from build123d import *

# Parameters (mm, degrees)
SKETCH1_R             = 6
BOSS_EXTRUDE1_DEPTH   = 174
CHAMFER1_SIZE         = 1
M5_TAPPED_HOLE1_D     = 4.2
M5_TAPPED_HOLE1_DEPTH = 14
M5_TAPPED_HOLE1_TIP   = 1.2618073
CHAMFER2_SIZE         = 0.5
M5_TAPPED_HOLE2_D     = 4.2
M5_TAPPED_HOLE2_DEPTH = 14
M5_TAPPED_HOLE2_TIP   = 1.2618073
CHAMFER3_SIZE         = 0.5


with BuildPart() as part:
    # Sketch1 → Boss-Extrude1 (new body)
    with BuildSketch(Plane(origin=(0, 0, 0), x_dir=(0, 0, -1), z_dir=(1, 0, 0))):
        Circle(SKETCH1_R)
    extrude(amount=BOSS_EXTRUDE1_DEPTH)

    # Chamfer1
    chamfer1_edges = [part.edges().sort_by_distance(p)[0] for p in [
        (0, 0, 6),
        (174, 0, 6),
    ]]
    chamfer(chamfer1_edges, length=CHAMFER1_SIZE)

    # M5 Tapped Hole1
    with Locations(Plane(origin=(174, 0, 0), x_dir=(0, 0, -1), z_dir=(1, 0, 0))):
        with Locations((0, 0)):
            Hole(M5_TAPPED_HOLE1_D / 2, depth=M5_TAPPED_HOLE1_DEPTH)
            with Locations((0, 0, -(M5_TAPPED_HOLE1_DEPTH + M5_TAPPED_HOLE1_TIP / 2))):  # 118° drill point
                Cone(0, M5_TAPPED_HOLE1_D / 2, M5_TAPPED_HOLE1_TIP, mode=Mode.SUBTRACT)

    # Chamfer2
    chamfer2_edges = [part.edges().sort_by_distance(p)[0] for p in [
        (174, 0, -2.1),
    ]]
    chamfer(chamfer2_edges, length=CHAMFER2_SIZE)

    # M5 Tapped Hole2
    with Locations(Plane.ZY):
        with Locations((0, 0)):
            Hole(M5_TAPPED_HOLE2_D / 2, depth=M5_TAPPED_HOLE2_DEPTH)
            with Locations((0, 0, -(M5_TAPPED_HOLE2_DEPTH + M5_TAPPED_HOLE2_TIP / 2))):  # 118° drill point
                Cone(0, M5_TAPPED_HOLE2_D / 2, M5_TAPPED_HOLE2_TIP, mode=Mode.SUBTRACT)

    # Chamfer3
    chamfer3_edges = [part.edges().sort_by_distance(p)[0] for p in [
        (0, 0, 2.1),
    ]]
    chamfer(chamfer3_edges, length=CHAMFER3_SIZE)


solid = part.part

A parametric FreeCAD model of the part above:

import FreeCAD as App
import Part
import Sketcher
Q = App.Units.Quantity


def edges_at(feature, points):
    """Names of the edges that pass closest to the given points."""
    edges = feature.Shape.Edges
    near = lambda p: min(range(len(edges)), key=lambda i: edges[i].distToShape(Part.Vertex(*p))[0])
    return sorted({f"Edge{near(p) + 1}" for p in points})

doc = App.newDocument("Part")
body = doc.addObject("PartDesign::Body", "Body")

sketch1 = body.newObject("Sketcher::SketchObject", "Sketch")
sketch1.AttachmentSupport = (doc.getObject("YZ_Plane"), [""])
sketch1.MapMode = "FlatFace"
sketch1.addGeometry(Part.Circle(App.Vector(0, 0, 0), App.Vector(0, 0, 1), 6), False)
sketch1.addConstraint([
    Sketcher.Constraint("Coincident", 0, 3, -1, 1),
    Sketcher.Constraint("Diameter", 0, Q("12 mm")),
])
pad1 = body.newObject("PartDesign::Pad", "Pad")
pad1.Profile = sketch1
pad1.Length = 174
doc.recompute()

chamfer = body.newObject("PartDesign::Chamfer", "Chamfer")
chamfer.Base = (pad1, edges_at(pad1, [(0, 0, 6), (174, 0, 6)]))
chamfer.Size = 1

sketch2 = body.newObject("Sketcher::SketchObject", "Sketch001")
sketch2.AttachmentSupport = (doc.getObject("YZ_Plane"), [""])
sketch2.MapMode = "FlatFace"
sketch2.AttachmentOffset = App.Placement(App.Vector(0, 0, 174), App.Rotation())
sketch2.addGeometry(Part.Circle(App.Vector(0, 0, 0), App.Vector(0, 0, 1), 2.1), False)
sketch2.addConstraint([
    Sketcher.Constraint("Coincident", 0, 3, -1, 1),
    Sketcher.Constraint("Diameter", 0, Q("4.2 mm")),
])
doc.recompute()
hole = body.newObject("PartDesign::Hole", "Hole")
hole.Profile = sketch2
hole.ThreadType = "None"
hole.Diameter = 4.2
hole.DepthType = "Dimension"
hole.Depth = 14
hole.DrillPoint = "Angled"
hole.DrillPointAngle = 118
doc.recompute()

chamfer2 = body.newObject("PartDesign::Chamfer", "Chamfer001")
chamfer2.Base = (hole, edges_at(hole, [(174, 0, -2.1)]))
chamfer2.Size = 0.5

sketch3 = body.newObject("Sketcher::SketchObject", "Sketch002")
sketch3.AttachmentSupport = (doc.getObject("YZ_Plane"), [""])
sketch3.MapMode = "FlatFace"
sketch3.addGeometry(Part.Circle(App.Vector(0, 0, 0), App.Vector(0, 0, 1), 2.1), False)
sketch3.addConstraint([
    Sketcher.Constraint("Coincident", 0, 3, -1, 1),
    Sketcher.Constraint("Diameter", 0, Q("4.2 mm")),
])
doc.recompute()
hole2 = body.newObject("PartDesign::Hole", "Hole001")
hole2.Profile = sketch3
hole2.ThreadType = "None"
hole2.Diameter = 4.2
hole2.DepthType = "Dimension"
hole2.Depth = 14
hole2.DrillPoint = "Angled"
hole2.DrillPointAngle = 118
hole2.Reversed = True
doc.recompute()

chamfer3 = body.newObject("PartDesign::Chamfer", "Chamfer002")
chamfer3.Base = (hole2, edges_at(hole2, [(0, 0, 2.1)]))
chamfer3.Size = 0.5

doc.recompute()
